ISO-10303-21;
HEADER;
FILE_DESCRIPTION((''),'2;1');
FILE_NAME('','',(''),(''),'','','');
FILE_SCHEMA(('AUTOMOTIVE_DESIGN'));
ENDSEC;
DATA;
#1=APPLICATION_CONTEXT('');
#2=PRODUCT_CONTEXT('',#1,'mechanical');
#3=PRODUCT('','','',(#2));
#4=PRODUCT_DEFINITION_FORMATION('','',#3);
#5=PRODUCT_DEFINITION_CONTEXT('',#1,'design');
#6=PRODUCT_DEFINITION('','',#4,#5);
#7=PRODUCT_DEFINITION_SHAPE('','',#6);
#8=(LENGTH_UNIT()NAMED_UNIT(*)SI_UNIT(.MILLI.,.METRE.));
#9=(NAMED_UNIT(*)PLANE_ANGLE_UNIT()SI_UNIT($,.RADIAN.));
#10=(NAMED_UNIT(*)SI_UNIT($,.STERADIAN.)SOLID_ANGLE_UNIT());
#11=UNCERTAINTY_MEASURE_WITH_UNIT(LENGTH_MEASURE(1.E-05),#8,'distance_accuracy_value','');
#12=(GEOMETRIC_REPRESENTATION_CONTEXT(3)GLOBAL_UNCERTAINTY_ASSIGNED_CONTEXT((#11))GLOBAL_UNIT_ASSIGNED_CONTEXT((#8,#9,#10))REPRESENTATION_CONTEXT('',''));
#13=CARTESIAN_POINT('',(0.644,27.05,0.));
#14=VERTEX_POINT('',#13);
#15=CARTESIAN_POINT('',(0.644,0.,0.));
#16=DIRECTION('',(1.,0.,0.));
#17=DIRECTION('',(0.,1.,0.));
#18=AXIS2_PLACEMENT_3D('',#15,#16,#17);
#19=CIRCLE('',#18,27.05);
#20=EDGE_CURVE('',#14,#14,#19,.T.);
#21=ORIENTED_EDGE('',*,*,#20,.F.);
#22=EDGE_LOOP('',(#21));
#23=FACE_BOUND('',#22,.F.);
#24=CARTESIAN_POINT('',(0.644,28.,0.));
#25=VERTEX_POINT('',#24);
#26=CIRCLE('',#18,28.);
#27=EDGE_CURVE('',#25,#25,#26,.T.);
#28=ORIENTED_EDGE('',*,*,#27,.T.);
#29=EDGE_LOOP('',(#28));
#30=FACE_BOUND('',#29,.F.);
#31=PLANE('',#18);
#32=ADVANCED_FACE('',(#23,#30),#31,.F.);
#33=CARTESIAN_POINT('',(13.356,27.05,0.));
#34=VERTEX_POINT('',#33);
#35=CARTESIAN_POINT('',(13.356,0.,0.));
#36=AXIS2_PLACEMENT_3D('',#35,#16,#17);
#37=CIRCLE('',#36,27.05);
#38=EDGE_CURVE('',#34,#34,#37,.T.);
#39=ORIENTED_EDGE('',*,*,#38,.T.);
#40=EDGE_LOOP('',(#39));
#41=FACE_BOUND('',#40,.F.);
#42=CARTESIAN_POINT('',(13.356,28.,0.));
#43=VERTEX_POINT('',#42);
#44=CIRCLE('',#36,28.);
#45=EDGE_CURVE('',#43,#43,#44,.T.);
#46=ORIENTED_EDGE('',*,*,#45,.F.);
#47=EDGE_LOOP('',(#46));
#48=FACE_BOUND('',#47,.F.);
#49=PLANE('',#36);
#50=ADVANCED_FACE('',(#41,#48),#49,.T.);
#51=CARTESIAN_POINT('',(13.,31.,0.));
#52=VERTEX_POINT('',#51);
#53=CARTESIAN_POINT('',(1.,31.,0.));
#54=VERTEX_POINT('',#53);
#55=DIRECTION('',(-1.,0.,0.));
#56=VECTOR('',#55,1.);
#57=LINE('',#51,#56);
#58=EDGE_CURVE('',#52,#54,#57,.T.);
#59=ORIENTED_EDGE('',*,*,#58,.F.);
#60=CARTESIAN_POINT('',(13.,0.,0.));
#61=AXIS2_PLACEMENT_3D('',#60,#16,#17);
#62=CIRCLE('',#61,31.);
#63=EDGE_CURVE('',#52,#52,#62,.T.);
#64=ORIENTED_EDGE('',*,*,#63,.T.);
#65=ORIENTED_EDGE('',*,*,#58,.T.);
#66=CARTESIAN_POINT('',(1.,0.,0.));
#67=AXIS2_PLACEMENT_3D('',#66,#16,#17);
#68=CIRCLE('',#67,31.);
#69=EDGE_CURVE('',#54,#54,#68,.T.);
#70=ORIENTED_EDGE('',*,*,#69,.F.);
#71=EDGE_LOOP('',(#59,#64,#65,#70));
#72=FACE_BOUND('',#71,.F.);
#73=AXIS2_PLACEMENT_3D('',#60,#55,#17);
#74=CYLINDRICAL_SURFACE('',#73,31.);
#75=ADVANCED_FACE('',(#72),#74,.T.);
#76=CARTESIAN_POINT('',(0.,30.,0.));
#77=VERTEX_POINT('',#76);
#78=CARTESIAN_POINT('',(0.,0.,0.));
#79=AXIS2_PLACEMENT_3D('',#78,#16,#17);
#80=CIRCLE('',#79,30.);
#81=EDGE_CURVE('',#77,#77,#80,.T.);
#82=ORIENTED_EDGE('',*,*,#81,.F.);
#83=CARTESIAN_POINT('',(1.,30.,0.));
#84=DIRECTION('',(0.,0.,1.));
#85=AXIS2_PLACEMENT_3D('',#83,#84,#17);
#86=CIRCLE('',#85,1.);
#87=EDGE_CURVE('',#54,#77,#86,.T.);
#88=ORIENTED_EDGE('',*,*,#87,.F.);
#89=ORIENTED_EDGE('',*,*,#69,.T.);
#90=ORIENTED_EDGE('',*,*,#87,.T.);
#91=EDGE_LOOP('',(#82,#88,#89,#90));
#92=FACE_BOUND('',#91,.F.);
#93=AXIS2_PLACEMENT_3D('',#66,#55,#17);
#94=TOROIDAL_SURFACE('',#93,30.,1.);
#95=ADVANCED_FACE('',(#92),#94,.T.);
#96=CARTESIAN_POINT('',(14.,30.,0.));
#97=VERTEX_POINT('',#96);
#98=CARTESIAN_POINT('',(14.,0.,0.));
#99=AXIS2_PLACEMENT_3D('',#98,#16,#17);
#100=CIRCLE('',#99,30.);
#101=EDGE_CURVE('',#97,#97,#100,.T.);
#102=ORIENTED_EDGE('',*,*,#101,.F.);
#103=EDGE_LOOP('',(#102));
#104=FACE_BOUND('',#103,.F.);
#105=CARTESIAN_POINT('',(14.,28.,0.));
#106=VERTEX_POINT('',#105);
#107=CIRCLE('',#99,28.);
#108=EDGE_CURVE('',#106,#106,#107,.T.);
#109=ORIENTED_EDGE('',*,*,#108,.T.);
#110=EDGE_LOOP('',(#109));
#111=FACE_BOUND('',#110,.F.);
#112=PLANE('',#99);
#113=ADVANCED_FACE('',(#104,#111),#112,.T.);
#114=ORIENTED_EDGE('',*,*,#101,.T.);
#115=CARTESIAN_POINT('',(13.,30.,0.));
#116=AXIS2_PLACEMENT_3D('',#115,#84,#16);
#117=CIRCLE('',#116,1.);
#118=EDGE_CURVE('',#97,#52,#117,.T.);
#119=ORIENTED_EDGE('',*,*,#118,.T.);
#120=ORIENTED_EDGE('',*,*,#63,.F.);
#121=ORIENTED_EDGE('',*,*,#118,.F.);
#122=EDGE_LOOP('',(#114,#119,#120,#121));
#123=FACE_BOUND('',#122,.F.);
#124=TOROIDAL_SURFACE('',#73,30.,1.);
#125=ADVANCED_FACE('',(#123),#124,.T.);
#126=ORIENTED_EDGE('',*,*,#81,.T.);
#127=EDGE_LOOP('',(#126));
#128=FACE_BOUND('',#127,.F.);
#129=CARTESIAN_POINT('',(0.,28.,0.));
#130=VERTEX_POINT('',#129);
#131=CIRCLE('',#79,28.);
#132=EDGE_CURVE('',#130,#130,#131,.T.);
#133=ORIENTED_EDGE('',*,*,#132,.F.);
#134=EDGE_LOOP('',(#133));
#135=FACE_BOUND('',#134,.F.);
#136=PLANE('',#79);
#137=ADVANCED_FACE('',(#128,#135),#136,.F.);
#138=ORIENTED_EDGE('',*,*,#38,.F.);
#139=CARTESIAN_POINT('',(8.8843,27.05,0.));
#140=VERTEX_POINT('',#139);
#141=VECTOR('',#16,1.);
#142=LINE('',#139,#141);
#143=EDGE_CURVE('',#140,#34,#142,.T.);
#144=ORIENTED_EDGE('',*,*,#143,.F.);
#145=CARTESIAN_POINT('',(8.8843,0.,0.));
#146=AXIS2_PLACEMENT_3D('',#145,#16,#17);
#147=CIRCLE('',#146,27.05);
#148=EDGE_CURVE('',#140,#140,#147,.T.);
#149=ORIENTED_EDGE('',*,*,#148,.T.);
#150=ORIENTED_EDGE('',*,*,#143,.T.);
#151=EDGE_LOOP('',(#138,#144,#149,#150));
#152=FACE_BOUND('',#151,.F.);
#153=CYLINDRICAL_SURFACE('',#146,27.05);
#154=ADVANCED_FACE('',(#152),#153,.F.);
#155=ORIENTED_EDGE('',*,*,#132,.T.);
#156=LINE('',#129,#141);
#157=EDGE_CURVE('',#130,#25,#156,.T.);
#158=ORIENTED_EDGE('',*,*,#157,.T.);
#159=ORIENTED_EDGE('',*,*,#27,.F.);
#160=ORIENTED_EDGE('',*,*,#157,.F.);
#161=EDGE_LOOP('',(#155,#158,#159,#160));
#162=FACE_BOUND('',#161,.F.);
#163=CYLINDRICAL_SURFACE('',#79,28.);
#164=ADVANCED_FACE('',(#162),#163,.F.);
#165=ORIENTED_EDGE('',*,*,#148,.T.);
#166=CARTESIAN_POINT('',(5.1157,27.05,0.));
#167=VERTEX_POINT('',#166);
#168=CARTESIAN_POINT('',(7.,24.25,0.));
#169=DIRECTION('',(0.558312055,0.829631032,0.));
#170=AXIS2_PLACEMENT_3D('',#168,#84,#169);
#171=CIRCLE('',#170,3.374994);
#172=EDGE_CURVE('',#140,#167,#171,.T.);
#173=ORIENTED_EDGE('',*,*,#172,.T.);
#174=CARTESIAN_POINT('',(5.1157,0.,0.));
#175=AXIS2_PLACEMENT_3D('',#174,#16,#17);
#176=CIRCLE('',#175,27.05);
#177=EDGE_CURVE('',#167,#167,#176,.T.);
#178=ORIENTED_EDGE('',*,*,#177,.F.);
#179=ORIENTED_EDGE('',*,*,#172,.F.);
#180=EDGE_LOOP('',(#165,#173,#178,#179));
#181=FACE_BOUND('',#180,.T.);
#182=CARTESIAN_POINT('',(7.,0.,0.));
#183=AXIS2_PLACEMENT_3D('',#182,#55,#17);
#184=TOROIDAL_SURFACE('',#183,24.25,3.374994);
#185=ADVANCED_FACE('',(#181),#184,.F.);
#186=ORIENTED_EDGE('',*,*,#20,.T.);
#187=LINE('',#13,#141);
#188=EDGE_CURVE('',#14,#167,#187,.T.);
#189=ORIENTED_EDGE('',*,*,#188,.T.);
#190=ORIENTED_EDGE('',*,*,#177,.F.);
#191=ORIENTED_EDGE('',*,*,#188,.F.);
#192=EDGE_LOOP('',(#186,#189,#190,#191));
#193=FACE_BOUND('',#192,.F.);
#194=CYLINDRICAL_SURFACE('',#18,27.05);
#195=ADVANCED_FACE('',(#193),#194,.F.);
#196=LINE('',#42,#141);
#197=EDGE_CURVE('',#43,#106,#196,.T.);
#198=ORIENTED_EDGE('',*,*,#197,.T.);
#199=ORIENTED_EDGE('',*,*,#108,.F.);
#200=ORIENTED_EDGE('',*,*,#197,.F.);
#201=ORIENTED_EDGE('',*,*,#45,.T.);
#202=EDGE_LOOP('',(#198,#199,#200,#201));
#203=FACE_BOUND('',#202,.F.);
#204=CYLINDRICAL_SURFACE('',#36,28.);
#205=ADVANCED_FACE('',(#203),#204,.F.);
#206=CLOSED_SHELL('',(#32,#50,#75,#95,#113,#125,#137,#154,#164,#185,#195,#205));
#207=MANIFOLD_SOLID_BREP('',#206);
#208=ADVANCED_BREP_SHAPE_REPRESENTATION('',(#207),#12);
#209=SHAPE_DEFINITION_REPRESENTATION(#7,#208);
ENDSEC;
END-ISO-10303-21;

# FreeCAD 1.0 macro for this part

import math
import FreeCAD as App
import Part
import Sketcher

V = App.Vector
Q = App.Units.Quantity

doc = App.newDocument("Part")
params = doc.addObject("Spreadsheet::Sheet", "Params")
for row, (alias, value) in enumerate([
    ("sketch1_radius", "1 mm"),
    ("sketch1_width", "12 mm"),
    ("sketch1_height", "2 mm"),
    ("sketch1_height2", "0.95 mm"),
    ("revolution_angle", "360 deg"),
], start=1):
    params.set(f"A{row}", alias)
    params.set(f"B{row}", "=" + value)
    params.setAlias(f"B{row}", alias)

body = doc.addObject("PartDesign::Body", "Body")

# Sketch on XY plane
sketch1 = body.newObject("Sketcher::SketchObject", "Sketch")
sketch1.AttachmentSupport = (doc.getObject("XY_Plane"), [""])
sketch1.MapMode = "FlatFace"
sketch1.addGeometry(Part.LineSegment(V(0, 30, 0), V(0, 28, 0)), False)
sketch1.addGeometry(Part.LineSegment(V(0, 28, 0), V(0.644, 28, 0)), False)
sketch1.addGeometry(Part.LineSegment(V(0.644, 28, 0), V(0.644, 27.05, 0)), False)
sketch1.addGeometry(Part.LineSegment(V(0.644, 27.05, 0), V(5.1157, 27.05, 0)), False)
sketch1.addGeometry(Part.ArcOfCircle(Part.Circle(V(7, 24.25, 0), V(0, 0, 1), 3.374994), math.radians(56.060855), math.radians(123.939145)), False)
sketch1.addGeometry(Part.LineSegment(V(8.8843, 27.05, 0), V(13.356, 27.05, 0)), False)
sketch1.addGeometry(Part.LineSegment(V(13.356, 27.05, 0), V(13.356, 28, 0)), False)
sketch1.addGeometry(Part.LineSegment(V(13.356, 28, 0), V(14, 28, 0)), False)
sketch1.addGeometry(Part.LineSegment(V(14, 28, 0), V(14, 30, 0)), False)
sketch1.addGeometry(Part.ArcOfCircle(Part.Circle(V(13, 30, 0), V(0, 0, 1), 1), math.radians(0), math.radians(90)), False)
sketch1.addGeometry(Part.LineSegment(V(13, 31, 0), V(1, 31, 0)), False)
sketch1.addGeometry(Part.ArcOfCircle(Part.Circle(V(1, 30, 0), V(0, 0, 1), 1), math.radians(90), math.radians(180)), False)
sketch1.addConstraint(Sketcher.Constraint("Coincident", 0, 2, 1, 1))
sketch1.addConstraint(Sketcher.Constraint("Coincident", 1, 2, 2, 1))
sketch1.addConstraint(Sketcher.Constraint("Coincident", 2, 2, 3, 1))
sketch1.addConstraint(Sketcher.Constraint("Coincident", 3, 2, 4, 2))
sketch1.addConstraint(Sketcher.Constraint("Coincident", 4, 1, 5, 1))
sketch1.addConstraint(Sketcher.Constraint("Coincident", 5, 2, 6, 1))
sketch1.addConstraint(Sketcher.Constraint("Coincident", 6, 2, 7, 1))
sketch1.addConstraint(Sketcher.Constraint("Coincident", 7, 2, 8, 1))
sketch1.addConstraint(Sketcher.Constraint("Tangent", 8, 2, 9, 1))
sketch1.addConstraint(Sketcher.Constraint("Tangent", 9, 2, 10, 1))
sketch1.addConstraint(Sketcher.Constraint("Tangent", 10, 2, 11, 1))
sketch1.addConstraint(Sketcher.Constraint("Tangent", 11, 2, 0, 1))
sketch1.addConstraint(Sketcher.Constraint("Vertical", 0))
sketch1.addConstraint(Sketcher.Constraint("Horizontal", 1))
sketch1.addConstraint(Sketcher.Constraint("Vertical", 2))
sketch1.addConstraint(Sketcher.Constraint("Horizontal", 3))
sketch1.addConstraint(Sketcher.Constraint("Horizontal", 5))
sketch1.addConstraint(Sketcher.Constraint("Vertical", 6))
sketch1.addConstraint(Sketcher.Constraint("Horizontal", 7))
sketch1.addConstraint(Sketcher.Constraint("Vertical", 8))
sketch1.addConstraint(Sketcher.Constraint("Horizontal", 10))
sketch1.addConstraint(Sketcher.Constraint("Equal", 9, 11))
sketch1.addConstraint(Sketcher.Constraint("PointOnObject", 0, 2, -2))
sketch1.addConstraint(Sketcher.Constraint("Horizontal", 3, 2, 4, 1))
sketch1.addConstraint(Sketcher.Constraint("Horizontal", 1, 2, 6, 2))
sketch1.addConstraint(Sketcher.Constraint("Equal", 3, 5))
sketch1.addConstraint(Sketcher.Constraint("Equal", 1, 7))
sketch1.addConstraint(Sketcher.Constraint("Radius", 9, Q("1 mm")))
sketch1.addConstraint(Sketcher.Constraint("DistanceX", 10, 2, 10, 1, Q("12 mm")))
sketch1.addConstraint(Sketcher.Constraint("DistanceY", 0, 2, 0, 1, Q("2 mm")))
sketch1.addConstraint(Sketcher.Constraint("DistanceY", -1, 1, 9, 3, Q("30 mm")))
sketch1.addConstraint(Sketcher.Constraint("Radius", 4, Q("3.375 mm")))
sketch1.addConstraint(Sketcher.Constraint("DistanceY", 2, 2, 2, 1, Q("0.95 mm")))
sketch1.addConstraint(Sketcher.Constraint("DistanceY", 4, 3, 2, 2, Q("2.8 mm")))
sketch1.addConstraint(Sketcher.Constraint("DistanceX", 1, 1, 1, 2, Q("0.644 mm")))
sketch1.setExpression("Constraints[27]", "Params.sketch1_radius")
sketch1.setExpression("Constraints[28]", "Params.sketch1_width")
sketch1.setExpression("Constraints[29]", "Params.sketch1_height")
sketch1.setExpression("Constraints[32]", "Params.sketch1_height2")
revolution = body.newObject("PartDesign::Revolution", "Revolution")
revolution.Profile = sketch1
revolution.ReferenceAxis = (sketch1, ["H_Axis"])
revolution.setExpression("Angle", "Params.revolution_angle")

doc.recompute()
